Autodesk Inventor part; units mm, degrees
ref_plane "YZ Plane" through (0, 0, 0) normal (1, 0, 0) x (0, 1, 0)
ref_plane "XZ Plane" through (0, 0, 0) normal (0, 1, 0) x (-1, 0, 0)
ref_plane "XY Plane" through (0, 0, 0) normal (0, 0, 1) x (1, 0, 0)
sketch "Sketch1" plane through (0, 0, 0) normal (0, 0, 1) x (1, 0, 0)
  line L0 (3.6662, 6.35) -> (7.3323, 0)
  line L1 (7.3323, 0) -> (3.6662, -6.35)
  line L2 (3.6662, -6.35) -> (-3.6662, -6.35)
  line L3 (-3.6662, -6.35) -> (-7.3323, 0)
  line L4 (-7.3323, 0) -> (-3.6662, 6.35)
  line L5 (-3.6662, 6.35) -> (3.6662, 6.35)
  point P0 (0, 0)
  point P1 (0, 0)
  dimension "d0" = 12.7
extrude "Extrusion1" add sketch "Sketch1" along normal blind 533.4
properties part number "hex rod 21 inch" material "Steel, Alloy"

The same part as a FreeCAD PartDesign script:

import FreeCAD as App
import Part
import Sketcher

V = App.Vector
Q = App.Units.Quantity


def add_polygon(sketch, points):
    """Adds a closed chain of lines whose ends are joined by coincident constraints."""
    first, n = sketch.GeometryCount, len(points)
    for a, b in zip(points, points[1:] + points[:1]):
        sketch.addGeometry(Part.LineSegment(App.Vector(*a, 0), App.Vector(*b, 0)), False)
    for i in range(n):
        sketch.addConstraint(Sketcher.Constraint("Coincident", first + i, 2, first + (i + 1) % n, 1))

doc = App.newDocument("Part")
params = doc.addObject("Spreadsheet::Sheet", "Params")
for row, (alias, value) in enumerate([
    ("pad1_length", "21 in"),
], start=1):
    params.set(f"A{row}", alias)
    params.set(f"B{row}", "=" + value)
    params.setAlias(f"B{row}", alias)

body = doc.addObject("PartDesign::Body", "Body")

sketch1 = body.newObject("Sketcher::SketchObject", "Sketch")
sketch1.AttachmentSupport = (doc.getObject("XY_Plane"), [""])
sketch1.MapMode = "FlatFace"
add_polygon(sketch1, [(7, 0), (4, 6), (-4, 6), (-7, 0), (-4, -6), (4, -6)])
sketch1.addConstraint(Sketcher.Constraint("Horizontal", 1))
sketch1.addConstraint(Sketcher.Constraint("Horizontal", 4))
sketch1.addConstraint(Sketcher.Constraint("Symmetric", 0, 2, 3, 2, -1, 1))
sketch1.addConstraint(Sketcher.Constraint("Symmetric", 2, 2, 5, 2, -1, 1))
sketch1.addConstraint(Sketcher.Constraint("PointOnObject", 2, 2, -1))
sketch1.addConstraint(Sketcher.Constraint("Parallel", 2, 5))
sketch1.addConstraint(Sketcher.Constraint("Vertical", 1, 2, 3, 2))
sketch1.addConstraint(Sketcher.Constraint("DistanceY", 3, 2, 1, 2, Q("0.5 in")))
sketch1.addConstraint(Sketcher.Constraint("Angle", 0, Q("119.9995 deg")))
sketch1.addConstraint(Sketcher.Constraint("DistanceX", 2, 2, 0, 2, Q("0.433 in")))
pad1 = body.newObject("PartDesign::Pad", "Pad")
pad1.Profile = sketch1
pad1.setExpression("Length", "Params.pad1_length")

doc.recompute()
